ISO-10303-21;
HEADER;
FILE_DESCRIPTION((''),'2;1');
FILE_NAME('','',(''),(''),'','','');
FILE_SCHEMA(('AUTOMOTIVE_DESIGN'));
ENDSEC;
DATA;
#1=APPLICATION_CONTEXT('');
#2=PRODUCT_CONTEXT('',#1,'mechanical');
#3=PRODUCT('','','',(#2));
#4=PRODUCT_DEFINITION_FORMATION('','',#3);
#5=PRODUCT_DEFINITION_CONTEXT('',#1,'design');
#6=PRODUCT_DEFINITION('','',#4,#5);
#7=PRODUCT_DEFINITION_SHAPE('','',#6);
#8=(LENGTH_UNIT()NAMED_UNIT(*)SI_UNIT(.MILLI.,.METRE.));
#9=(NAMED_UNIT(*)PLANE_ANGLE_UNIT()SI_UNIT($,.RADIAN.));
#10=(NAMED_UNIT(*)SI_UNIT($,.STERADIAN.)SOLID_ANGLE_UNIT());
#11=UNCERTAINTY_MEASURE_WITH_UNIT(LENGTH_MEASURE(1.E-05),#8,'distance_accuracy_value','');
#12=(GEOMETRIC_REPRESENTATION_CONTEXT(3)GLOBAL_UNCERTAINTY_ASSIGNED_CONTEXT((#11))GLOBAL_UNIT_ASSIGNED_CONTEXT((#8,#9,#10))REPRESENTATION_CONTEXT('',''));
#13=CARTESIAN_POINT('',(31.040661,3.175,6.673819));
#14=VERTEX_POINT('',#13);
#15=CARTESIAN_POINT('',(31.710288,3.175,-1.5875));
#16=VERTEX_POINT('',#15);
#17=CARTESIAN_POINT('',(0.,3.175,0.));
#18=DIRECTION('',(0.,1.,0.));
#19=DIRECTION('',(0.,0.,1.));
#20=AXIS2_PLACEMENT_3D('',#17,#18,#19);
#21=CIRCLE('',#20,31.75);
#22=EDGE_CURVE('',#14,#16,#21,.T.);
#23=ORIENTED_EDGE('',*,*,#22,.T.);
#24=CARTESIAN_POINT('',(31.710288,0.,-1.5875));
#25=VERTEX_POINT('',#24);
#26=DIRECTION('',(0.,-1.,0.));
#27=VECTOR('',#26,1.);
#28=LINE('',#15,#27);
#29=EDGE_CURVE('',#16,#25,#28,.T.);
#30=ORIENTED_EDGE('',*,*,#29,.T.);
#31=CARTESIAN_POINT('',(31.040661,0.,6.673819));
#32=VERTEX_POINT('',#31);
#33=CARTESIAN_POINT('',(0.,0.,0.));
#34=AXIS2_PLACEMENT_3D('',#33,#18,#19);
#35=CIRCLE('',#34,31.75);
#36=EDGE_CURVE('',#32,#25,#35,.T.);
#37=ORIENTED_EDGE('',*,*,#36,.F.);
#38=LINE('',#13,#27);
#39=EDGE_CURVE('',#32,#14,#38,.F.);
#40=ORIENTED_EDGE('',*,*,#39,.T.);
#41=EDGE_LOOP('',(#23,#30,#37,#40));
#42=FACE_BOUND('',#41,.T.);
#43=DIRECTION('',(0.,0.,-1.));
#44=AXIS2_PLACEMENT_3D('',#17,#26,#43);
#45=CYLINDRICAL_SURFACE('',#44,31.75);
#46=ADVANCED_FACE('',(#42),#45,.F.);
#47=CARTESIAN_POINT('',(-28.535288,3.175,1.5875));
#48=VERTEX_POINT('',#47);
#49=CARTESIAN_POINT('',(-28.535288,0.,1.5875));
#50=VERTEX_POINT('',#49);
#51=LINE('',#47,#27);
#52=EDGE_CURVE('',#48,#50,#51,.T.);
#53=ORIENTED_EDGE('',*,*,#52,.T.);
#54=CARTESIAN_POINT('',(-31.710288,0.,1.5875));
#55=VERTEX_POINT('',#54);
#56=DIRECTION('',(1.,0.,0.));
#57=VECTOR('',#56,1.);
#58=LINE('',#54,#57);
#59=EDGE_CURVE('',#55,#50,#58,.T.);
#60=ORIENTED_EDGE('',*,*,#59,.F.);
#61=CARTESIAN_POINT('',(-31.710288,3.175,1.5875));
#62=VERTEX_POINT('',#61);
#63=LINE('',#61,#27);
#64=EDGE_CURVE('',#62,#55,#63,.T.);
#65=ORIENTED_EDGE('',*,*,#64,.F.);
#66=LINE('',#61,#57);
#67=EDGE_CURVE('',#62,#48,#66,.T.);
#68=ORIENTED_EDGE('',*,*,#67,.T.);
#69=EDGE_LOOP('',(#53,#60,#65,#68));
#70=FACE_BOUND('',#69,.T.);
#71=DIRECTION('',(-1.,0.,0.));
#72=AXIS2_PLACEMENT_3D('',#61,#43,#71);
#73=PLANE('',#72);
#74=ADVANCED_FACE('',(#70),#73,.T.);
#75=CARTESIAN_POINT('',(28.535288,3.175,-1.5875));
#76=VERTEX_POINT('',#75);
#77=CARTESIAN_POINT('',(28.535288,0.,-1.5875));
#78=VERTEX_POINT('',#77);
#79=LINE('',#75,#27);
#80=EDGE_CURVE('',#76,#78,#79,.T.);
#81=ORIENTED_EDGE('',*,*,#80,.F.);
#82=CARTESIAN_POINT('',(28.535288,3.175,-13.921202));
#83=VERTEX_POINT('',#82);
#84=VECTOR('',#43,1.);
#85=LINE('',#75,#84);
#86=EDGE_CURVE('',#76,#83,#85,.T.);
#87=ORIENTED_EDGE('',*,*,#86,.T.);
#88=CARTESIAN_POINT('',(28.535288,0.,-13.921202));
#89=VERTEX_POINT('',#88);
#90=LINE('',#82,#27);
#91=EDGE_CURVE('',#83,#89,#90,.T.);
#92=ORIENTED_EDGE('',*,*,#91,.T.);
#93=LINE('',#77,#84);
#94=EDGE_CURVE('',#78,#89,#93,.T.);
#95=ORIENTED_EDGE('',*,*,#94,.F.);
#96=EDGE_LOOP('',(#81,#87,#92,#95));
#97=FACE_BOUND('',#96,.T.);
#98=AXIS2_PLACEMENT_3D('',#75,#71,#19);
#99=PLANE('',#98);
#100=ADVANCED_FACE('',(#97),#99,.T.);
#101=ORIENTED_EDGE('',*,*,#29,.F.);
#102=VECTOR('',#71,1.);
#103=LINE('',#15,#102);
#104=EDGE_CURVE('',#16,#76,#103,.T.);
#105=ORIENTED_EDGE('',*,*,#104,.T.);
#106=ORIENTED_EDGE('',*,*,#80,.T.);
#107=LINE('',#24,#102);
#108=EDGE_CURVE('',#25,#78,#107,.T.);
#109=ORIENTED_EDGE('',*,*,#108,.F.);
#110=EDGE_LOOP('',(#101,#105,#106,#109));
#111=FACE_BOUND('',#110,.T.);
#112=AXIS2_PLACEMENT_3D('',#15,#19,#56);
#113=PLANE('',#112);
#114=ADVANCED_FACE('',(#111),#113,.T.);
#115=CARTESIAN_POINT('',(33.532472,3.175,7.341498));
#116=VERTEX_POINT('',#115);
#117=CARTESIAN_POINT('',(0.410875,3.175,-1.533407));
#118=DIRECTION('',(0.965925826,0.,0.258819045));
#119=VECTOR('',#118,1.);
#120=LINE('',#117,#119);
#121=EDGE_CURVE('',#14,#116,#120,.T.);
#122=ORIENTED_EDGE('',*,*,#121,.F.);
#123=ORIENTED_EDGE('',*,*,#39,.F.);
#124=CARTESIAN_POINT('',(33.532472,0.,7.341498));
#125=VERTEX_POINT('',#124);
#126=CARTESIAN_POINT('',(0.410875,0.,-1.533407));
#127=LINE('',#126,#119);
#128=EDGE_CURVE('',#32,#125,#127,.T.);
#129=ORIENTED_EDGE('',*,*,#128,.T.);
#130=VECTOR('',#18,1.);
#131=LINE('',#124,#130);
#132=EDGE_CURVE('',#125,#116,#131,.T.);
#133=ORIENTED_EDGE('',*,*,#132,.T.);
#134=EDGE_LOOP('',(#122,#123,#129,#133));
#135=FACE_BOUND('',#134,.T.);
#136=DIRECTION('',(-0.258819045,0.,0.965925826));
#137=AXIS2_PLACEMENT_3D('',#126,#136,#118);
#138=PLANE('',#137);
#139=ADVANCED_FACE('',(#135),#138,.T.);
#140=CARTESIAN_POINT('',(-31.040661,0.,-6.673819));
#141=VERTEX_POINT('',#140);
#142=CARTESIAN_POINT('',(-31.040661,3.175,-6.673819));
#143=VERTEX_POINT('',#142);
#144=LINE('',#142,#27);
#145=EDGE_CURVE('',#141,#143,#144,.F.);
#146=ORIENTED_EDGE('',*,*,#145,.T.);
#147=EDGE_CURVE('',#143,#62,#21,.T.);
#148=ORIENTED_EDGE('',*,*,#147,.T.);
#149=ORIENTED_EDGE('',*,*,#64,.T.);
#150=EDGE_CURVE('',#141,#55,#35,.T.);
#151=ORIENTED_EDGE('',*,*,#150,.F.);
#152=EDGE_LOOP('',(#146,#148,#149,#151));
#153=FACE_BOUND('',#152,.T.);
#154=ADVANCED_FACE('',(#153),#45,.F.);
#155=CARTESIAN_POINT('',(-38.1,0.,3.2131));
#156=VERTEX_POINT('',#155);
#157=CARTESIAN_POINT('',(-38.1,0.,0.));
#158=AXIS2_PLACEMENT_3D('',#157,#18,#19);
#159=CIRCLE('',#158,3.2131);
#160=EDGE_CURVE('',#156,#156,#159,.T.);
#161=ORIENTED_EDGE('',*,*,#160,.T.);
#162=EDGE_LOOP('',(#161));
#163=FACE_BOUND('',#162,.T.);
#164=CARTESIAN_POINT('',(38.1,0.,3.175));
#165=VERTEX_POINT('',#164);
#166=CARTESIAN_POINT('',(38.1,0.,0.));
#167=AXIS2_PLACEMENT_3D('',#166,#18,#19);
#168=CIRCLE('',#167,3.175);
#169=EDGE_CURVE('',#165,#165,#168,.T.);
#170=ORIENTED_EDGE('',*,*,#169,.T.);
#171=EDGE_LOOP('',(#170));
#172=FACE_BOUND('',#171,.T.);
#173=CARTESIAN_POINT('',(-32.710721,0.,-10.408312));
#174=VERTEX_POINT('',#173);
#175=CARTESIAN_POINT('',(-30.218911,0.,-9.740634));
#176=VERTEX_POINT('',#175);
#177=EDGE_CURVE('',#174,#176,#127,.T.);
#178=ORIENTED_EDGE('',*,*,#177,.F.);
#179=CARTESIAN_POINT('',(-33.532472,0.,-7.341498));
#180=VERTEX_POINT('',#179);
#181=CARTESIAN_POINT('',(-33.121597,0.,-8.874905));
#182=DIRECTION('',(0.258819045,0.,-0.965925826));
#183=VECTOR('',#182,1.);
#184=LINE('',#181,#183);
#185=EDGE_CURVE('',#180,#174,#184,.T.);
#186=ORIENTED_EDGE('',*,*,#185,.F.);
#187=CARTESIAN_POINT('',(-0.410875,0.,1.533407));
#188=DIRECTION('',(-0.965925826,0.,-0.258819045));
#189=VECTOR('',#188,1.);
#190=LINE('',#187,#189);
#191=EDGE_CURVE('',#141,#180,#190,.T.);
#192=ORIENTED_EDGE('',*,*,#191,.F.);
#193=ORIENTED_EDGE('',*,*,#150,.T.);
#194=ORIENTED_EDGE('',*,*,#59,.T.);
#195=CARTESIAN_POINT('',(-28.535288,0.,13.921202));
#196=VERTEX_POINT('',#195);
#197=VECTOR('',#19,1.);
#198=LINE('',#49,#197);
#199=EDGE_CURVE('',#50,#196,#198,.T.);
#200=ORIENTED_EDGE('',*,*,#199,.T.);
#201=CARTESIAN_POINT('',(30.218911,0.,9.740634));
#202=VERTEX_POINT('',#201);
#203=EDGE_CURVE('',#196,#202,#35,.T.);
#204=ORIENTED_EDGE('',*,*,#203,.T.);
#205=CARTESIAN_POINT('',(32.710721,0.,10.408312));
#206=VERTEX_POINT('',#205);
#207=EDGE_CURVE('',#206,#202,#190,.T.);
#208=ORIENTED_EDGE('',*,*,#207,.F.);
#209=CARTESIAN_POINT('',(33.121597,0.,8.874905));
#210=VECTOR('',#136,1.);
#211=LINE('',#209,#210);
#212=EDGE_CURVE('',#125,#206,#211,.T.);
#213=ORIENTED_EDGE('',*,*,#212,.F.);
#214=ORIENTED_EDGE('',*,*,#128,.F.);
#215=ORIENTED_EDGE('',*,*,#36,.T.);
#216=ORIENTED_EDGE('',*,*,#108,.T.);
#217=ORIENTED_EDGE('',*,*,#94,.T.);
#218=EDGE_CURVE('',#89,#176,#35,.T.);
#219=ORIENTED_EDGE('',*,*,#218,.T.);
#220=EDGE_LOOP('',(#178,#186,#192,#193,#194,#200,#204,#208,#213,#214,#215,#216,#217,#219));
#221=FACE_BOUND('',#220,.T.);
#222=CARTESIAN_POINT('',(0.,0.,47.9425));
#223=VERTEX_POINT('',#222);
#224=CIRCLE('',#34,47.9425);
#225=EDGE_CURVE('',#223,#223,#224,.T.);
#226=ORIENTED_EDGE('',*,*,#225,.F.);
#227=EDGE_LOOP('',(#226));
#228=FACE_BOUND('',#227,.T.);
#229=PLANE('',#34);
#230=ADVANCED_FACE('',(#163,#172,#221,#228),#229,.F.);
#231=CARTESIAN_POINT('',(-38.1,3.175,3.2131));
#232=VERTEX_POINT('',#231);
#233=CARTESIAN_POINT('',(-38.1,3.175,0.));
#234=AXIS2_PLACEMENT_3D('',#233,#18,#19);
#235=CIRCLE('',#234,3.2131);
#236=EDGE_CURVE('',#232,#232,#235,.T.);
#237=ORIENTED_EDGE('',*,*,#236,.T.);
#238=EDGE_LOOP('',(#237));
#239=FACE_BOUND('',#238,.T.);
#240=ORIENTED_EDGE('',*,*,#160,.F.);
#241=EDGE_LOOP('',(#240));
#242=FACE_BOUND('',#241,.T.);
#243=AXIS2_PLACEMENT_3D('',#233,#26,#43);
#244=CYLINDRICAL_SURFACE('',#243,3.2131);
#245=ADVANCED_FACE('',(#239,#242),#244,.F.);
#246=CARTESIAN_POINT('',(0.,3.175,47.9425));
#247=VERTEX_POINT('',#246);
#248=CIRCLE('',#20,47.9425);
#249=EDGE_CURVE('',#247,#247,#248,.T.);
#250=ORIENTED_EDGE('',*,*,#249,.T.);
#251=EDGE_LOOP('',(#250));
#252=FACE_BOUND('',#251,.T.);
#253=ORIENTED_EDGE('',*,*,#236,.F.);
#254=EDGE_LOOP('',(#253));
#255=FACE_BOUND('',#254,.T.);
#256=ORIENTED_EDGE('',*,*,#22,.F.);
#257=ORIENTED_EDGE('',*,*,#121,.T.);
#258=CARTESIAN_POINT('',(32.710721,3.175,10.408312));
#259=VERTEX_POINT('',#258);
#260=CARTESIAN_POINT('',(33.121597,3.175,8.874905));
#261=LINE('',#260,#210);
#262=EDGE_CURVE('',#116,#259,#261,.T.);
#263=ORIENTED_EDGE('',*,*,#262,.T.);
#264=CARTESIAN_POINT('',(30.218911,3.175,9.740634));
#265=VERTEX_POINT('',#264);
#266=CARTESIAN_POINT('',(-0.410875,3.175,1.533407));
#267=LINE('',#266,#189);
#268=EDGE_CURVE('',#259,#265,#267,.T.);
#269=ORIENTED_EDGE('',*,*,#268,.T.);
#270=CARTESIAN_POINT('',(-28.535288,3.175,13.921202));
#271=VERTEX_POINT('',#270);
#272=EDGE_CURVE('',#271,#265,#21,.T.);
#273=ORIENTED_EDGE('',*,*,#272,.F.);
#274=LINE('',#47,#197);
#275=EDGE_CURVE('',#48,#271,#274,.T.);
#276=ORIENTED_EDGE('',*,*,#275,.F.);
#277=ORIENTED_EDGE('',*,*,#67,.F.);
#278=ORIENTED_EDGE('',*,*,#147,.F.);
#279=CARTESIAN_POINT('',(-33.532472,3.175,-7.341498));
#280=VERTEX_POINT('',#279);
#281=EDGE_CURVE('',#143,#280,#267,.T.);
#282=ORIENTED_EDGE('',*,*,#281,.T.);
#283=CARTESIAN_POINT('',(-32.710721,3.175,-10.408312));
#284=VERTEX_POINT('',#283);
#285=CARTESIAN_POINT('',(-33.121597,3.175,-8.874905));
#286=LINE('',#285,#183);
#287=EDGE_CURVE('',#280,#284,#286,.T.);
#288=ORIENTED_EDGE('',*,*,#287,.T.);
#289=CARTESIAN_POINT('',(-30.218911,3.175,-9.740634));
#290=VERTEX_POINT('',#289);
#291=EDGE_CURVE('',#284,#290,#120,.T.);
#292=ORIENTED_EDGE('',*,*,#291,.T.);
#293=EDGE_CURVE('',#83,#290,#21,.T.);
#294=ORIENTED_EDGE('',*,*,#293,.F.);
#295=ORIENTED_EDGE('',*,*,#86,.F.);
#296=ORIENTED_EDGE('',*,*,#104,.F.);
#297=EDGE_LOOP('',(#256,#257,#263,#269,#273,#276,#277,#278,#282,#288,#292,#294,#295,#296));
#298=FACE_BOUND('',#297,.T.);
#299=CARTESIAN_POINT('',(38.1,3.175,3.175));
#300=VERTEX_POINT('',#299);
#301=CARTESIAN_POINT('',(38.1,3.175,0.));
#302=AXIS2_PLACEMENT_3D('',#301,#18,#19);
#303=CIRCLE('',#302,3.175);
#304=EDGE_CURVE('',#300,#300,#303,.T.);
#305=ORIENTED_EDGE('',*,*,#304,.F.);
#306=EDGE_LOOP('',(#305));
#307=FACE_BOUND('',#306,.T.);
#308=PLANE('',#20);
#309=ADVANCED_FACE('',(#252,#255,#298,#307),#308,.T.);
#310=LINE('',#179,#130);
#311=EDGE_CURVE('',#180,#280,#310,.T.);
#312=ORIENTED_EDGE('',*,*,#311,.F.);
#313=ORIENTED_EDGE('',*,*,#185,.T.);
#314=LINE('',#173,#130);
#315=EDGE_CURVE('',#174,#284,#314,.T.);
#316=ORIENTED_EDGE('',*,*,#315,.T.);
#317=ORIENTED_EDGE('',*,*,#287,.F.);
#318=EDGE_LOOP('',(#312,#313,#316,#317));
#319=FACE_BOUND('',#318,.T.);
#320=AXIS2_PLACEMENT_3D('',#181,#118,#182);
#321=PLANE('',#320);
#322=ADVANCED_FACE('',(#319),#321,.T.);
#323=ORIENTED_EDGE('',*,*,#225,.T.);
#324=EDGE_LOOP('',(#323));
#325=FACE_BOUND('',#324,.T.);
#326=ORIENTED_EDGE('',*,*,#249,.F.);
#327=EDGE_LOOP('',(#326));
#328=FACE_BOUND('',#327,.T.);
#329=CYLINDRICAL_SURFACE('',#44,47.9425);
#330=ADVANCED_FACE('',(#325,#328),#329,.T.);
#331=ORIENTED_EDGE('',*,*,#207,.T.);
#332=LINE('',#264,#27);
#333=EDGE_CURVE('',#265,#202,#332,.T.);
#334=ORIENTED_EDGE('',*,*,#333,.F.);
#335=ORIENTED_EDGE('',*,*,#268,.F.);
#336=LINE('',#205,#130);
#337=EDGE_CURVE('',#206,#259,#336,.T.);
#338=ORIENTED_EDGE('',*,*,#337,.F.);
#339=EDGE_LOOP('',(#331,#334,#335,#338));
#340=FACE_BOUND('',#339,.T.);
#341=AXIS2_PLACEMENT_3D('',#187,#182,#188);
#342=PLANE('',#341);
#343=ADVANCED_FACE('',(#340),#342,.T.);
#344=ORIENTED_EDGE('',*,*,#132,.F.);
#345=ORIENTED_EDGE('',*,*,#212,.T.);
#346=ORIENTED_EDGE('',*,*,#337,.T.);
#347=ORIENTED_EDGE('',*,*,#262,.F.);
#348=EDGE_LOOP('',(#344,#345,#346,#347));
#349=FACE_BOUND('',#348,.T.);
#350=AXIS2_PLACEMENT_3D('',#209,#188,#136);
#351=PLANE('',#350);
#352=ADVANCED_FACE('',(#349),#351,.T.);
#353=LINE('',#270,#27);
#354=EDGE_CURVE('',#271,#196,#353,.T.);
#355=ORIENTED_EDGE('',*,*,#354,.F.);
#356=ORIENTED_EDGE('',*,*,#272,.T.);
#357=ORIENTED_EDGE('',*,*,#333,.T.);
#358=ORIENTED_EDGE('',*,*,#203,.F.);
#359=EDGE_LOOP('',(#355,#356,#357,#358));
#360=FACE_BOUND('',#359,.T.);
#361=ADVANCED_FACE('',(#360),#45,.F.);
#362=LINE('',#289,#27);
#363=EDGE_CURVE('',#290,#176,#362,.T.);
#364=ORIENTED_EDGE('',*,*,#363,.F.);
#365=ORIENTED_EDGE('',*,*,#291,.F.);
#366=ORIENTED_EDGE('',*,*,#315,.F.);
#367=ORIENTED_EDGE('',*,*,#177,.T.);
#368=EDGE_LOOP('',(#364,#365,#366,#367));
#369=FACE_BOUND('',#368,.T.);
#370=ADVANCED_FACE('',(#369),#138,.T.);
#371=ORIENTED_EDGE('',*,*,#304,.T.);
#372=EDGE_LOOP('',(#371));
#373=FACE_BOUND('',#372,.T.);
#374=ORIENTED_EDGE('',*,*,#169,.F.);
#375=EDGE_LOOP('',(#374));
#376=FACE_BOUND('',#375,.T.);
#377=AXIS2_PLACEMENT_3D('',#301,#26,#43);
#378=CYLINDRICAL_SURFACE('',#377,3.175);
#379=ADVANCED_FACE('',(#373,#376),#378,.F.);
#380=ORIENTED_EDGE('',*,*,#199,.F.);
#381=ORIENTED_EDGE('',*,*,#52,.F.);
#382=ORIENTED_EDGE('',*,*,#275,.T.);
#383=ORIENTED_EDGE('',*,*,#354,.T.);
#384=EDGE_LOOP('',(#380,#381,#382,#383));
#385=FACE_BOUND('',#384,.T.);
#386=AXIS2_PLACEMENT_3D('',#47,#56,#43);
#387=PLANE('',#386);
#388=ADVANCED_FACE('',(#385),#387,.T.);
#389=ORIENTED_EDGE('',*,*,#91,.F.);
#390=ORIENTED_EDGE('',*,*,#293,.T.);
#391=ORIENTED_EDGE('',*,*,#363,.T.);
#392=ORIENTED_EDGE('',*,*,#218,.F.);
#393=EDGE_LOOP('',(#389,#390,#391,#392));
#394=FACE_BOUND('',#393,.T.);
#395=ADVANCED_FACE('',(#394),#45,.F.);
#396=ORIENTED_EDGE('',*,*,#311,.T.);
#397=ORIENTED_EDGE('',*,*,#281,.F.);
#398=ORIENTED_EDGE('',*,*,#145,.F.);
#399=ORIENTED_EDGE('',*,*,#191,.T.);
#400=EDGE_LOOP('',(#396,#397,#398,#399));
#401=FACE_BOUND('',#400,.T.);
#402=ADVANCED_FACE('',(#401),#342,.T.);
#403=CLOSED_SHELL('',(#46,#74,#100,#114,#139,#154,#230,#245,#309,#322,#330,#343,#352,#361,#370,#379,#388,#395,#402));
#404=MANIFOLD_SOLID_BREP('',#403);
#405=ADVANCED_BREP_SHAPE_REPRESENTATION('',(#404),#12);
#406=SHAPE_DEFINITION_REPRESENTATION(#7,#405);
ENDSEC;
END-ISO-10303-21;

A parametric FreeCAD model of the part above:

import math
import FreeCAD as App
import Part
import Sketcher

V = App.Vector
Q = App.Units.Quantity


def add_polygon(sketch, points):
    """Adds a closed chain of lines whose ends are joined by coincident constraints."""
    first, n = sketch.GeometryCount, len(points)
    for a, b in zip(points, points[1:] + points[:1]):
        sketch.addGeometry(Part.LineSegment(App.Vector(*a, 0), App.Vector(*b, 0)), False)
    for i in range(n):
        sketch.addConstraint(Sketcher.Constraint("Coincident", first + i, 2, first + (i + 1) % n, 1))

doc = App.newDocument("Part")
body = doc.addObject("PartDesign::Body", "Body")

# Sketch on XZ plane
sketch1 = doc.addObject("Sketcher::SketchObject", "Sketch")
body.addObject(sketch1)
sketch1.AttachmentSupport = (doc.XZ_Plane, [""])
sketch1.MapMode = "FlatFace"
sketch1.addGeometry(Part.Circle(V(0, 0, 0), V(0, 0, 1), 47.9), False)
sketch1.addGeometry(Part.Circle(V(-38.1, 0, 0), V(0, 0, 1), 3.2), False)
sketch1.addGeometry(Part.Circle(V(38.1, 0, 0), V(0, 0, 1), 3.2), False)
sketch1.addGeometry(Part.LineSegment(V(-28.5, 1.6, 0), V(-31.7, 1.6, 0)), False)
sketch1.addGeometry(Part.ArcOfCircle(Part.Circle(V(0, 0, 0), V(0, 0, 1), 31.8), math.radians(177), math.radians(334)), False)
sketch1.addGeometry(Part.LineSegment(V(28.5, -13.9, 0), V(28.5, -1.6, 0)), False)
sketch1.addGeometry(Part.LineSegment(V(28.5, -1.6, 0), V(31.7, -1.6, 0)), False)
sketch1.addGeometry(Part.ArcOfCircle(Part.Circle(V(0, 0, 0), V(0, 0, 1), 31.8), math.radians(-3), math.radians(154)), False)
sketch1.addGeometry(Part.LineSegment(V(-28.5, 13.9, 0), V(-28.5, 1.6, 0)), False)
sketch1.addConstraint(Sketcher.Constraint("Coincident", 3, 2, 4, 1))
sketch1.addConstraint(Sketcher.Constraint("Coincident", 4, 2, 5, 1))
sketch1.addConstraint(Sketcher.Constraint("Coincident", 5, 2, 6, 1))
sketch1.addConstraint(Sketcher.Constraint("Coincident", 6, 2, 7, 1))
sketch1.addConstraint(Sketcher.Constraint("Coincident", 7, 2, 8, 1))
sketch1.addConstraint(Sketcher.Constraint("Coincident", 8, 2, 3, 1))
sketch1.addConstraint(Sketcher.Constraint("Horizontal", 3))
sketch1.addConstraint(Sketcher.Constraint("Vertical", 5))
sketch1.addConstraint(Sketcher.Constraint("Horizontal", 6))
sketch1.addConstraint(Sketcher.Constraint("Vertical", 8))
sketch1.addConstraint(Sketcher.Constraint("Coincident", 0, 3, -1, 1))
sketch1.addConstraint(Sketcher.Constraint("Coincident", 4, 3, -1, 1))
sketch1.addConstraint(Sketcher.Constraint("Coincident", 7, 3, -1, 1))
sketch1.addConstraint(Sketcher.Constraint("Equal", 4, 7))
sketch1.addConstraint(Sketcher.Constraint("Symmetric", 1, 3, 2, 3, -1, 1))
sketch1.addConstraint(Sketcher.Constraint("Symmetric", 5, 2, 8, 2, -1, 1))
sketch1.addConstraint(Sketcher.Constraint("PointOnObject", 1, 3, -1))
sketch1.addConstraint(Sketcher.Constraint("Diameter", 2, Q("0.25 in")))
sketch1.addConstraint(Sketcher.Constraint("Radius", 4, Q("1.25 in")))
sketch1.addConstraint(Sketcher.Constraint("Diameter", 0, Q("3.775 in")))
sketch1.addConstraint(Sketcher.Constraint("Diameter", 1, Q("0.253 in")))
sketch1.addConstraint(Sketcher.Constraint("DistanceX", 1, 3, 2, 3, Q("3 in")))
sketch1.addConstraint(Sketcher.Constraint("DistanceX", 3, 2, 3, 1, Q("0.125 in")))
sketch1.addConstraint(Sketcher.Constraint("DistanceY", -1, 1, 3, 2, Q("0.0625 in")))
pad1 = doc.addObject("PartDesign::Pad", "Pad")
body.addObject(pad1)
pad1.Profile = sketch1
pad1.Length = Q("0.125 in")
pad1.Reversed = True

# Sketch on XZ plane
sketch2 = doc.addObject("Sketcher::SketchObject", "Sketch001")
body.addObject(sketch2)
sketch2.AttachmentSupport = (doc.XZ_Plane, [""])
sketch2.MapMode = "FlatFace"
sketch2.AttachmentOffset = App.Placement(V(0, 0, -0.125 * 25.4), App.Rotation())
add_polygon(sketch2, [(-32.7, -10.4), (-33.5, -7.3), (32.7, 10.4), (33.5, 7.3)])  # lines 0-3
sketch2.addConstraint(Sketcher.Constraint("Symmetric", 0, 2, 2, 2, -1, 1))
sketch2.addConstraint(Sketcher.Constraint("Symmetric", 1, 2, 3, 2, -1, 1))
sketch2.addConstraint(Sketcher.Constraint("Perpendicular", 0, 1))
sketch2.addConstraint(Sketcher.Constraint("Angle", 0, Q("105 deg")))
sketch2.addConstraint(Sketcher.Constraint("Distance", 1, Q("2.7 in")))
sketch2.addConstraint(Sketcher.Constraint("Distance", 0, Q("0.125 in")))
pocket1 = doc.addObject("PartDesign::Pocket", "Pocket")
body.addObject(pocket1)
pocket1.Profile = sketch2
pocket1.Type = "ThroughAll"
pocket1.Reversed = True

doc.recompute()
